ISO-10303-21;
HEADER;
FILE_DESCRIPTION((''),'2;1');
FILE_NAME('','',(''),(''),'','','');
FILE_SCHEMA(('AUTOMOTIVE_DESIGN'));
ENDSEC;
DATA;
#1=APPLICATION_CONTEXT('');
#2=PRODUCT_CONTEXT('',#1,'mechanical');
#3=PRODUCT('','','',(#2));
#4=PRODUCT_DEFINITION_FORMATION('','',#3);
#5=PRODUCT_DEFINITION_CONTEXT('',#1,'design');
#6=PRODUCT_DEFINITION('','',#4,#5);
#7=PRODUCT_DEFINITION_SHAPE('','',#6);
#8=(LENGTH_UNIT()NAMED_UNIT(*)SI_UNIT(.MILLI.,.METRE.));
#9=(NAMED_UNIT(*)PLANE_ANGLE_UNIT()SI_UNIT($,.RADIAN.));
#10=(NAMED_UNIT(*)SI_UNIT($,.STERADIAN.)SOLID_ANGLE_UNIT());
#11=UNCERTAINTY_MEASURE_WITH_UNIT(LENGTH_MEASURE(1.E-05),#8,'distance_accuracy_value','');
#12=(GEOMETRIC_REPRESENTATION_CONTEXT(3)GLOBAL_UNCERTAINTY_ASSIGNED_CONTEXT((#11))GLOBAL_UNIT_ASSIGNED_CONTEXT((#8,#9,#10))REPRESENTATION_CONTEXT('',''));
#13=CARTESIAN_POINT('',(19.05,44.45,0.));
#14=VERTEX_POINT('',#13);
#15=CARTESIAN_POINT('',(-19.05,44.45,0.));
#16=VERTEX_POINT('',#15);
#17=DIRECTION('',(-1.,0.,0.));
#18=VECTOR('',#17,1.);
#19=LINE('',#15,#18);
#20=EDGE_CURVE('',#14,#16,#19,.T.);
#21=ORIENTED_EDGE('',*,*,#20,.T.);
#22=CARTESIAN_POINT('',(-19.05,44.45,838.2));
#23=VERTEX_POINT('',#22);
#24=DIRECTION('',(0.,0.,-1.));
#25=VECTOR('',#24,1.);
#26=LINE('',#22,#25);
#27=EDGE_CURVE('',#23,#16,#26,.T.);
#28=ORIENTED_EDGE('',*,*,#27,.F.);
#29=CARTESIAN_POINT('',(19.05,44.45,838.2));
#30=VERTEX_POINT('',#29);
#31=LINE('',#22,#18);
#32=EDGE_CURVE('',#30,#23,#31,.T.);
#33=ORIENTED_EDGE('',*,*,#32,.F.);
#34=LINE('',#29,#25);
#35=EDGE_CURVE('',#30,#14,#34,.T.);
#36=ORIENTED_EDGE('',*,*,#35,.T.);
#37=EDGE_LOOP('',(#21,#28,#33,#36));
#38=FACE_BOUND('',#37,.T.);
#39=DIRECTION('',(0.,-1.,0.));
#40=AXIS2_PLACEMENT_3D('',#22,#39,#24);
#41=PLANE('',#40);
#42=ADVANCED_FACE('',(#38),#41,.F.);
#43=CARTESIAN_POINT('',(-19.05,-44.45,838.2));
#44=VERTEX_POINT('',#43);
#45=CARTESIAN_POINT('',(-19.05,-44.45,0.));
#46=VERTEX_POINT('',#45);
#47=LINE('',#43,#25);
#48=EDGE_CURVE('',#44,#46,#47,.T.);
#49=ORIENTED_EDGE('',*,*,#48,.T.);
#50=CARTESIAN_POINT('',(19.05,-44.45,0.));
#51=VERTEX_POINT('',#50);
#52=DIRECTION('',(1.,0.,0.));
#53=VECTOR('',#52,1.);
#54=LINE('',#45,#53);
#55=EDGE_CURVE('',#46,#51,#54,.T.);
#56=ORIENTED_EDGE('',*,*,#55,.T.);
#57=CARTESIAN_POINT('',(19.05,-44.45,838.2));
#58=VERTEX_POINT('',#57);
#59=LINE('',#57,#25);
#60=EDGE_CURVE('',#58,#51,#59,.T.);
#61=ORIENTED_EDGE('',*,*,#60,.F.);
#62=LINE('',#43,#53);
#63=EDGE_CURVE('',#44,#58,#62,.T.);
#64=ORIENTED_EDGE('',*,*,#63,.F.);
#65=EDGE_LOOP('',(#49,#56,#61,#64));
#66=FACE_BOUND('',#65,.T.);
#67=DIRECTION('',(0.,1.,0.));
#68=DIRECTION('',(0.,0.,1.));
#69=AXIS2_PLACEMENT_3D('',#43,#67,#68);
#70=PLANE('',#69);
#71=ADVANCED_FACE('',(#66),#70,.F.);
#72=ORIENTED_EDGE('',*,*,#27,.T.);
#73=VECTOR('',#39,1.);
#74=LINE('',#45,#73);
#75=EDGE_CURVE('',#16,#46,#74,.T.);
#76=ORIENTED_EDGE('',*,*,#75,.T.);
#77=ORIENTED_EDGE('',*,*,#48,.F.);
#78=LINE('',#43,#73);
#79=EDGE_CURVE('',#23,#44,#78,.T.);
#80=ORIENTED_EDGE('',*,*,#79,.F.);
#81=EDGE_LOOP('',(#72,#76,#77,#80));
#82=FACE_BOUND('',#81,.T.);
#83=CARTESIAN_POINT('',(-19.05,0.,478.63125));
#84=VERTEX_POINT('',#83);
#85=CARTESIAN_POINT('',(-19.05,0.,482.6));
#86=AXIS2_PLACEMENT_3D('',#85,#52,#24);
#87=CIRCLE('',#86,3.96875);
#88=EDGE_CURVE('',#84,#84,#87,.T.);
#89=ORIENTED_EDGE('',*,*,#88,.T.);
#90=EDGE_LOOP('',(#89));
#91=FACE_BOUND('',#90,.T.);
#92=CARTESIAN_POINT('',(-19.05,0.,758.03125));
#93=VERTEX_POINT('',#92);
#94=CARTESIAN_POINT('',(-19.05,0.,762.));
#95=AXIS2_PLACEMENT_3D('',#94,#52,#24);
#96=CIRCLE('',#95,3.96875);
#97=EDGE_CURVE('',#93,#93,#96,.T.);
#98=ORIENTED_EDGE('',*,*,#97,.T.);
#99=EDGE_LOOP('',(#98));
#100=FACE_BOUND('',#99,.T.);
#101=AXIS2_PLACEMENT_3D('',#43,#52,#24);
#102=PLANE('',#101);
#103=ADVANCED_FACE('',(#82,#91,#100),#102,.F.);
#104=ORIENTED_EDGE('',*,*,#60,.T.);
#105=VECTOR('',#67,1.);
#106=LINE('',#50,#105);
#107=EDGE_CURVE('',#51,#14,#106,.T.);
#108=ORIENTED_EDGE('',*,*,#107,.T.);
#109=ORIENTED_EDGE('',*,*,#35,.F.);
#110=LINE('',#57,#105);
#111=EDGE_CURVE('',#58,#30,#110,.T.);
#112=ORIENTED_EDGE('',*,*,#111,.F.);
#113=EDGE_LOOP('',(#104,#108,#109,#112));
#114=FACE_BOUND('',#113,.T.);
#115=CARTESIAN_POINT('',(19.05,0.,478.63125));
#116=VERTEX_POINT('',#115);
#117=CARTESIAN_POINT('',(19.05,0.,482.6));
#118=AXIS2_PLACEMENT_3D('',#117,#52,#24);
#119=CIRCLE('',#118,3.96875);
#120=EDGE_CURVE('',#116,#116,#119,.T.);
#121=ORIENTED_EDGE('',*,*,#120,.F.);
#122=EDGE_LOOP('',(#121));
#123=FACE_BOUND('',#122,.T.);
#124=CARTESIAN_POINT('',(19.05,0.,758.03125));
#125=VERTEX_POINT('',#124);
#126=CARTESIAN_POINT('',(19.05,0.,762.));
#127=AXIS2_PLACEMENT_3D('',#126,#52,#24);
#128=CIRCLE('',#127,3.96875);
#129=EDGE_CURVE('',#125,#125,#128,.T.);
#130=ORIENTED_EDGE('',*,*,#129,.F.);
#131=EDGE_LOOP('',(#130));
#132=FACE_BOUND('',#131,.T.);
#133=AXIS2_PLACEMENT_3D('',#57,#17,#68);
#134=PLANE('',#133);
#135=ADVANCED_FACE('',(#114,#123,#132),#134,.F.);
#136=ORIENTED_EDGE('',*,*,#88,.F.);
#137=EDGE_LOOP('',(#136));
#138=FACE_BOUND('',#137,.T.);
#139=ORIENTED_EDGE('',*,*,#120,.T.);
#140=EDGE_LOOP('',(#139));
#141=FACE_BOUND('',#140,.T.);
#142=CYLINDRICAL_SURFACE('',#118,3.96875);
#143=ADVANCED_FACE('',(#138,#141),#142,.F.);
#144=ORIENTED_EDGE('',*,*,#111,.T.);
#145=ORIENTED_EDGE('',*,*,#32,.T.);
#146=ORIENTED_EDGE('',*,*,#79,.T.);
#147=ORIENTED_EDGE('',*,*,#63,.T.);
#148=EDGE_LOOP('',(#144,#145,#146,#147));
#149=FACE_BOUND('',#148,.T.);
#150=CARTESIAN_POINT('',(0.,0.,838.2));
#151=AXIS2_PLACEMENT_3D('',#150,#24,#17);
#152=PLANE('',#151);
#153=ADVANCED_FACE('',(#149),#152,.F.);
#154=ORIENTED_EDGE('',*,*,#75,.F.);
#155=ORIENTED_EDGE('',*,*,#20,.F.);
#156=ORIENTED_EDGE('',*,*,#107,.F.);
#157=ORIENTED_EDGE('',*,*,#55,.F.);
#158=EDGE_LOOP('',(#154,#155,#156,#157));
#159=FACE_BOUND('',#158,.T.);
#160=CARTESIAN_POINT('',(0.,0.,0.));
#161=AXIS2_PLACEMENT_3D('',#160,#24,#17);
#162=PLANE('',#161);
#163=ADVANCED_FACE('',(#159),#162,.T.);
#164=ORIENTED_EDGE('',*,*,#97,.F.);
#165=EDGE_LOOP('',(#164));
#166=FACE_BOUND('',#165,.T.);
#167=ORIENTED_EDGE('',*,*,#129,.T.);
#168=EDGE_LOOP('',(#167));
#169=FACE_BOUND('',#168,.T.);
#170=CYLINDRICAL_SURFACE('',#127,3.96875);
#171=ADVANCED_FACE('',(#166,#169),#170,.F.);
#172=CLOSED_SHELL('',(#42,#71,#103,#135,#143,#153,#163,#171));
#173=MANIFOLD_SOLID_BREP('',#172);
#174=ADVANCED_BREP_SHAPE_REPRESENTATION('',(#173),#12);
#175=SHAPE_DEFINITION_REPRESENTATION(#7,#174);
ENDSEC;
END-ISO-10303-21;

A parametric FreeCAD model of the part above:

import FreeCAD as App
import Part
import Sketcher
from FreeCAD import Vector
Q = App.Units.Quantity

doc = App.newDocument("Part")
body = doc.addObject("PartDesign::Body", "Body")

sketch1 = body.newObject("Sketcher::SketchObject", "Sketch")
sketch1.AttachmentSupport = (doc.getObject("XY_Plane"), [""])
sketch1.MapMode = "FlatFace"
sketch1.addGeometry([
    Part.LineSegment(Vector(-19, 44, 0), Vector(-19, -44, 0)),
    Part.LineSegment(Vector(-19, -44, 0), Vector(19, -44, 0)),
    Part.LineSegment(Vector(19, -44, 0), Vector(19, 44, 0)),
    Part.LineSegment(Vector(19, 44, 0), Vector(-19, 44, 0)),
], False)
sketch1.addConstraint([
    Sketcher.Constraint("Coincident", 0, 2, 1, 1),
    Sketcher.Constraint("Coincident", 1, 2, 2, 1),
    Sketcher.Constraint("Coincident", 2, 2, 3, 1),
    Sketcher.Constraint("Coincident", 3, 2, 0, 1),
    Sketcher.Constraint("Vertical", 0),
    Sketcher.Constraint("Horizontal", 1),
    Sketcher.Constraint("Vertical", 2),
    Sketcher.Constraint("Horizontal", 3),
    Sketcher.Constraint("Symmetric", 0, 2, 2, 2, -1, 1),
    Sketcher.Constraint("DistanceX", 1, 1, 1, 2, Q("1.5 in")),
    Sketcher.Constraint("DistanceY", 0, 2, 0, 1, Q("3.5 in")),
])
pad1 = body.newObject("PartDesign::Pad", "Pad")
pad1.Profile = sketch1
pad1.Length = Q("33 in")

sketch2 = body.newObject("Sketcher::SketchObject", "Sketch001")
sketch2.AttachmentSupport = (doc.getObject("YZ_Plane"), [""])
sketch2.MapMode = "FlatFace"
sketch2.AttachmentOffset = App.Placement(Vector(0, 0, 0.75 * 25.4), App.Rotation())
sketch2.addGeometry([
    Part.Circle(Vector(0, 482.6, 0), Vector(0, 0, 1), 4),
    Part.Circle(Vector(0, 762, 0), Vector(0, 0, 1), 4),
], False)
sketch2.addConstraint([
    Sketcher.Constraint("Equal", 0, 1),
    Sketcher.Constraint("PointOnObject", 0, 3, -2),
    Sketcher.Constraint("PointOnObject", 1, 3, -2),
    Sketcher.Constraint("Diameter", 0, Q("0.3125 in")),
    Sketcher.Constraint("DistanceY", -1, 1, 0, 3, Q("19 in")),
    Sketcher.Constraint("DistanceY", -1, 1, 1, 3, Q("30 in")),
])
doc.recompute()
hole = body.newObject("PartDesign::Hole", "Hole")
hole.Profile = sketch2
hole.ThreadType = "None"
hole.Diameter = Q("0.3125 in")
hole.DepthType = "ThroughAll"

doc.recompute()
